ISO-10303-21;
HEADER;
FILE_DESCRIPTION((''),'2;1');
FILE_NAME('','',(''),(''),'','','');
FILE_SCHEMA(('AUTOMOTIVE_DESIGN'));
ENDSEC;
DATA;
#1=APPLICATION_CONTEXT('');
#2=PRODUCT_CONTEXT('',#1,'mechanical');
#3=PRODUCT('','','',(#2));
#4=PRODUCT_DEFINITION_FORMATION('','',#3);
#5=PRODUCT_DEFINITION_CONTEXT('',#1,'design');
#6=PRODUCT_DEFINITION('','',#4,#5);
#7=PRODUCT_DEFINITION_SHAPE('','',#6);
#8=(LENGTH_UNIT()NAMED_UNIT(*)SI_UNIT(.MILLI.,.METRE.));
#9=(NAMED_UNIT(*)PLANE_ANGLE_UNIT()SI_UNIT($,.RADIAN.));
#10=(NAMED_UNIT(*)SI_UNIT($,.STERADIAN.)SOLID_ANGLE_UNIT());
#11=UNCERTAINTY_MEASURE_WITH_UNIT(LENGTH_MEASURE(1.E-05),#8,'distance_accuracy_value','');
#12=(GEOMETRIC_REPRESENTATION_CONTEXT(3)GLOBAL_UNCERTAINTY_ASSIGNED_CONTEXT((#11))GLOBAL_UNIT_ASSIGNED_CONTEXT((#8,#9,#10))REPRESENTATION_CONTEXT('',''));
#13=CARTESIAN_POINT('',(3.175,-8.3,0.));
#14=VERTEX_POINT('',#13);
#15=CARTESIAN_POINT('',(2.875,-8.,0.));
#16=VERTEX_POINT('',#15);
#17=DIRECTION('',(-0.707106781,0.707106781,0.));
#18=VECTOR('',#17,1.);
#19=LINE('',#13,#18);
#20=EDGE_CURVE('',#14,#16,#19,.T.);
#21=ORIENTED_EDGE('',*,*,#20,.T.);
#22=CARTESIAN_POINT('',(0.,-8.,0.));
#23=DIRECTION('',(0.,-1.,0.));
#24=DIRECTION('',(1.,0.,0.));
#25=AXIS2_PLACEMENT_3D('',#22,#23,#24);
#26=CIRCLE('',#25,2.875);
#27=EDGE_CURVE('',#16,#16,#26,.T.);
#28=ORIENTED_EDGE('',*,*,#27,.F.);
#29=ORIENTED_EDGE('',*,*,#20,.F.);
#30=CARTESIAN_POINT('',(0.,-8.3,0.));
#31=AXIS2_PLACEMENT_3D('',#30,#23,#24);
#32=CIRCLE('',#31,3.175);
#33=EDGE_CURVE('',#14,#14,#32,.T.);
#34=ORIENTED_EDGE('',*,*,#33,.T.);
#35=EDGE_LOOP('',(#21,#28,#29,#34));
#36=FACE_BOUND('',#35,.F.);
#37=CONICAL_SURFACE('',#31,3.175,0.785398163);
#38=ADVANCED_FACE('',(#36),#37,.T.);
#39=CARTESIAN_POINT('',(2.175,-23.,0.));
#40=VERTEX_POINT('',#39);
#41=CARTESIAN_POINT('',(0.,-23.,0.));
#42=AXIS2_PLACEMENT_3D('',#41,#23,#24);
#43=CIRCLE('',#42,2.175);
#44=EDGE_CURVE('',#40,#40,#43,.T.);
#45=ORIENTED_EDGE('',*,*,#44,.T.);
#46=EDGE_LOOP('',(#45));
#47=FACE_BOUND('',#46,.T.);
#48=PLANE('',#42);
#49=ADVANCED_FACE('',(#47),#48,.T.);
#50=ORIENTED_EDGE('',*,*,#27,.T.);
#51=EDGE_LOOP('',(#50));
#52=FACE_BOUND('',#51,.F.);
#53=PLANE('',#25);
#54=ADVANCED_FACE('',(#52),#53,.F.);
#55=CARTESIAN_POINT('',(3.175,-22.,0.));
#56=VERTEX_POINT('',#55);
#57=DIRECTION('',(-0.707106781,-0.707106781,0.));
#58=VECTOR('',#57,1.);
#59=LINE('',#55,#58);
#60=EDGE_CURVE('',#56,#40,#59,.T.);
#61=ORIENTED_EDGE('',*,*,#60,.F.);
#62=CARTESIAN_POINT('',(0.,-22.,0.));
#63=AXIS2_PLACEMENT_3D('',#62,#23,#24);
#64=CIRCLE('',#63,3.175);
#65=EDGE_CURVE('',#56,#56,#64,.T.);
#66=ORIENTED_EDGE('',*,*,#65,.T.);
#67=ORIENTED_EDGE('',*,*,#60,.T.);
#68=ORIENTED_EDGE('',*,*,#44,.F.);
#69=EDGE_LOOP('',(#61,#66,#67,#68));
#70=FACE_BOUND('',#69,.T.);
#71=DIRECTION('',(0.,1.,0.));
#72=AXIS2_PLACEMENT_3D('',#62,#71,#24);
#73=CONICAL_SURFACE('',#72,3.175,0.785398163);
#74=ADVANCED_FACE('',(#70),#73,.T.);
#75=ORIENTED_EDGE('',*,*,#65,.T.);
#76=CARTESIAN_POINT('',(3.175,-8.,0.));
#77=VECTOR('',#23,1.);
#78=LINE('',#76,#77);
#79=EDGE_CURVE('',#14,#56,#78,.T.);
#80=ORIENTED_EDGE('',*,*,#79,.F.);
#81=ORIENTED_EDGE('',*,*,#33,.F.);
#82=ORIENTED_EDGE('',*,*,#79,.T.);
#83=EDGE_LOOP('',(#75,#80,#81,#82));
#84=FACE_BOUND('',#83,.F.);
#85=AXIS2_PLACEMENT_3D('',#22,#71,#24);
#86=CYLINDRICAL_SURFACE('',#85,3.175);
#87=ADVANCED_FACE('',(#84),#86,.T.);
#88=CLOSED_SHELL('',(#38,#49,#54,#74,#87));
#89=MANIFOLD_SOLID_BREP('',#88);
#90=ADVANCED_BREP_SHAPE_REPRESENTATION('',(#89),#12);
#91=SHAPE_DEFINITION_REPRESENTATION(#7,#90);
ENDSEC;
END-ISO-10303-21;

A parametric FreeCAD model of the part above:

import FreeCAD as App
import Part
import Sketcher
from FreeCAD import Vector
Q = App.Units.Quantity


def edges_at(feature, points):
    """Names of the edges that pass closest to the given points."""
    edges = feature.Shape.Edges
    near = lambda p: min(range(len(edges)), key=lambda i: edges[i].distToShape(Part.Vertex(*p))[0])
    return sorted({f"Edge{near(p) + 1}" for p in points})

doc = App.newDocument("Part")
body = doc.addObject("PartDesign::Body", "Body")

# Sketch on XZ plane
sketch1 = doc.addObject("Sketcher::SketchObject", "Sketch")
body.addObject(sketch1)
sketch1.AttachmentSupport = (doc.XZ_Plane, [""])
sketch1.MapMode = "FlatFace"
sketch1.addGeometry(Part.Circle(Vector(0, 0, 0), Vector(0, 0, 1), 3.2), False)
sketch1.addConstraint([
    Sketcher.Constraint("Coincident", 0, 3, -1, 1),
    Sketcher.Constraint("Diameter", 0, Q("6.35 mm")),
])
pad1 = doc.addObject("PartDesign::Pad", "Pad")
body.addObject(pad1)
pad1.Profile = sketch1
pad1.Length = 15
doc.recompute()

chamfer = doc.addObject("PartDesign::Chamfer", "Chamfer")
body.addObject(chamfer)
chamfer.Base = (pad1, edges_at(pad1, [(-3.175, 0, 0)]))
chamfer.Size = 0.3
doc.recompute()

chamfer2 = doc.addObject("PartDesign::Chamfer", "Chamfer001")
body.addObject(chamfer2)
chamfer2.Base = (chamfer, edges_at(chamfer, [(-3.175, -15, 0)]))
chamfer2.Size = 1
body2 = doc.addObject("PartDesign::Body", "Body001")
doc.recompute()

body.Placement = App.Placement(Vector(0, -8, 0), App.Rotation(Vector(0, 0, 1), 0))
boolean = doc.addObject("PartDesign::Boolean", "Boolean")
body2.addObject(boolean)
boolean.Type = "Fuse"
boolean.addObjects([body])

doc.recompute()
